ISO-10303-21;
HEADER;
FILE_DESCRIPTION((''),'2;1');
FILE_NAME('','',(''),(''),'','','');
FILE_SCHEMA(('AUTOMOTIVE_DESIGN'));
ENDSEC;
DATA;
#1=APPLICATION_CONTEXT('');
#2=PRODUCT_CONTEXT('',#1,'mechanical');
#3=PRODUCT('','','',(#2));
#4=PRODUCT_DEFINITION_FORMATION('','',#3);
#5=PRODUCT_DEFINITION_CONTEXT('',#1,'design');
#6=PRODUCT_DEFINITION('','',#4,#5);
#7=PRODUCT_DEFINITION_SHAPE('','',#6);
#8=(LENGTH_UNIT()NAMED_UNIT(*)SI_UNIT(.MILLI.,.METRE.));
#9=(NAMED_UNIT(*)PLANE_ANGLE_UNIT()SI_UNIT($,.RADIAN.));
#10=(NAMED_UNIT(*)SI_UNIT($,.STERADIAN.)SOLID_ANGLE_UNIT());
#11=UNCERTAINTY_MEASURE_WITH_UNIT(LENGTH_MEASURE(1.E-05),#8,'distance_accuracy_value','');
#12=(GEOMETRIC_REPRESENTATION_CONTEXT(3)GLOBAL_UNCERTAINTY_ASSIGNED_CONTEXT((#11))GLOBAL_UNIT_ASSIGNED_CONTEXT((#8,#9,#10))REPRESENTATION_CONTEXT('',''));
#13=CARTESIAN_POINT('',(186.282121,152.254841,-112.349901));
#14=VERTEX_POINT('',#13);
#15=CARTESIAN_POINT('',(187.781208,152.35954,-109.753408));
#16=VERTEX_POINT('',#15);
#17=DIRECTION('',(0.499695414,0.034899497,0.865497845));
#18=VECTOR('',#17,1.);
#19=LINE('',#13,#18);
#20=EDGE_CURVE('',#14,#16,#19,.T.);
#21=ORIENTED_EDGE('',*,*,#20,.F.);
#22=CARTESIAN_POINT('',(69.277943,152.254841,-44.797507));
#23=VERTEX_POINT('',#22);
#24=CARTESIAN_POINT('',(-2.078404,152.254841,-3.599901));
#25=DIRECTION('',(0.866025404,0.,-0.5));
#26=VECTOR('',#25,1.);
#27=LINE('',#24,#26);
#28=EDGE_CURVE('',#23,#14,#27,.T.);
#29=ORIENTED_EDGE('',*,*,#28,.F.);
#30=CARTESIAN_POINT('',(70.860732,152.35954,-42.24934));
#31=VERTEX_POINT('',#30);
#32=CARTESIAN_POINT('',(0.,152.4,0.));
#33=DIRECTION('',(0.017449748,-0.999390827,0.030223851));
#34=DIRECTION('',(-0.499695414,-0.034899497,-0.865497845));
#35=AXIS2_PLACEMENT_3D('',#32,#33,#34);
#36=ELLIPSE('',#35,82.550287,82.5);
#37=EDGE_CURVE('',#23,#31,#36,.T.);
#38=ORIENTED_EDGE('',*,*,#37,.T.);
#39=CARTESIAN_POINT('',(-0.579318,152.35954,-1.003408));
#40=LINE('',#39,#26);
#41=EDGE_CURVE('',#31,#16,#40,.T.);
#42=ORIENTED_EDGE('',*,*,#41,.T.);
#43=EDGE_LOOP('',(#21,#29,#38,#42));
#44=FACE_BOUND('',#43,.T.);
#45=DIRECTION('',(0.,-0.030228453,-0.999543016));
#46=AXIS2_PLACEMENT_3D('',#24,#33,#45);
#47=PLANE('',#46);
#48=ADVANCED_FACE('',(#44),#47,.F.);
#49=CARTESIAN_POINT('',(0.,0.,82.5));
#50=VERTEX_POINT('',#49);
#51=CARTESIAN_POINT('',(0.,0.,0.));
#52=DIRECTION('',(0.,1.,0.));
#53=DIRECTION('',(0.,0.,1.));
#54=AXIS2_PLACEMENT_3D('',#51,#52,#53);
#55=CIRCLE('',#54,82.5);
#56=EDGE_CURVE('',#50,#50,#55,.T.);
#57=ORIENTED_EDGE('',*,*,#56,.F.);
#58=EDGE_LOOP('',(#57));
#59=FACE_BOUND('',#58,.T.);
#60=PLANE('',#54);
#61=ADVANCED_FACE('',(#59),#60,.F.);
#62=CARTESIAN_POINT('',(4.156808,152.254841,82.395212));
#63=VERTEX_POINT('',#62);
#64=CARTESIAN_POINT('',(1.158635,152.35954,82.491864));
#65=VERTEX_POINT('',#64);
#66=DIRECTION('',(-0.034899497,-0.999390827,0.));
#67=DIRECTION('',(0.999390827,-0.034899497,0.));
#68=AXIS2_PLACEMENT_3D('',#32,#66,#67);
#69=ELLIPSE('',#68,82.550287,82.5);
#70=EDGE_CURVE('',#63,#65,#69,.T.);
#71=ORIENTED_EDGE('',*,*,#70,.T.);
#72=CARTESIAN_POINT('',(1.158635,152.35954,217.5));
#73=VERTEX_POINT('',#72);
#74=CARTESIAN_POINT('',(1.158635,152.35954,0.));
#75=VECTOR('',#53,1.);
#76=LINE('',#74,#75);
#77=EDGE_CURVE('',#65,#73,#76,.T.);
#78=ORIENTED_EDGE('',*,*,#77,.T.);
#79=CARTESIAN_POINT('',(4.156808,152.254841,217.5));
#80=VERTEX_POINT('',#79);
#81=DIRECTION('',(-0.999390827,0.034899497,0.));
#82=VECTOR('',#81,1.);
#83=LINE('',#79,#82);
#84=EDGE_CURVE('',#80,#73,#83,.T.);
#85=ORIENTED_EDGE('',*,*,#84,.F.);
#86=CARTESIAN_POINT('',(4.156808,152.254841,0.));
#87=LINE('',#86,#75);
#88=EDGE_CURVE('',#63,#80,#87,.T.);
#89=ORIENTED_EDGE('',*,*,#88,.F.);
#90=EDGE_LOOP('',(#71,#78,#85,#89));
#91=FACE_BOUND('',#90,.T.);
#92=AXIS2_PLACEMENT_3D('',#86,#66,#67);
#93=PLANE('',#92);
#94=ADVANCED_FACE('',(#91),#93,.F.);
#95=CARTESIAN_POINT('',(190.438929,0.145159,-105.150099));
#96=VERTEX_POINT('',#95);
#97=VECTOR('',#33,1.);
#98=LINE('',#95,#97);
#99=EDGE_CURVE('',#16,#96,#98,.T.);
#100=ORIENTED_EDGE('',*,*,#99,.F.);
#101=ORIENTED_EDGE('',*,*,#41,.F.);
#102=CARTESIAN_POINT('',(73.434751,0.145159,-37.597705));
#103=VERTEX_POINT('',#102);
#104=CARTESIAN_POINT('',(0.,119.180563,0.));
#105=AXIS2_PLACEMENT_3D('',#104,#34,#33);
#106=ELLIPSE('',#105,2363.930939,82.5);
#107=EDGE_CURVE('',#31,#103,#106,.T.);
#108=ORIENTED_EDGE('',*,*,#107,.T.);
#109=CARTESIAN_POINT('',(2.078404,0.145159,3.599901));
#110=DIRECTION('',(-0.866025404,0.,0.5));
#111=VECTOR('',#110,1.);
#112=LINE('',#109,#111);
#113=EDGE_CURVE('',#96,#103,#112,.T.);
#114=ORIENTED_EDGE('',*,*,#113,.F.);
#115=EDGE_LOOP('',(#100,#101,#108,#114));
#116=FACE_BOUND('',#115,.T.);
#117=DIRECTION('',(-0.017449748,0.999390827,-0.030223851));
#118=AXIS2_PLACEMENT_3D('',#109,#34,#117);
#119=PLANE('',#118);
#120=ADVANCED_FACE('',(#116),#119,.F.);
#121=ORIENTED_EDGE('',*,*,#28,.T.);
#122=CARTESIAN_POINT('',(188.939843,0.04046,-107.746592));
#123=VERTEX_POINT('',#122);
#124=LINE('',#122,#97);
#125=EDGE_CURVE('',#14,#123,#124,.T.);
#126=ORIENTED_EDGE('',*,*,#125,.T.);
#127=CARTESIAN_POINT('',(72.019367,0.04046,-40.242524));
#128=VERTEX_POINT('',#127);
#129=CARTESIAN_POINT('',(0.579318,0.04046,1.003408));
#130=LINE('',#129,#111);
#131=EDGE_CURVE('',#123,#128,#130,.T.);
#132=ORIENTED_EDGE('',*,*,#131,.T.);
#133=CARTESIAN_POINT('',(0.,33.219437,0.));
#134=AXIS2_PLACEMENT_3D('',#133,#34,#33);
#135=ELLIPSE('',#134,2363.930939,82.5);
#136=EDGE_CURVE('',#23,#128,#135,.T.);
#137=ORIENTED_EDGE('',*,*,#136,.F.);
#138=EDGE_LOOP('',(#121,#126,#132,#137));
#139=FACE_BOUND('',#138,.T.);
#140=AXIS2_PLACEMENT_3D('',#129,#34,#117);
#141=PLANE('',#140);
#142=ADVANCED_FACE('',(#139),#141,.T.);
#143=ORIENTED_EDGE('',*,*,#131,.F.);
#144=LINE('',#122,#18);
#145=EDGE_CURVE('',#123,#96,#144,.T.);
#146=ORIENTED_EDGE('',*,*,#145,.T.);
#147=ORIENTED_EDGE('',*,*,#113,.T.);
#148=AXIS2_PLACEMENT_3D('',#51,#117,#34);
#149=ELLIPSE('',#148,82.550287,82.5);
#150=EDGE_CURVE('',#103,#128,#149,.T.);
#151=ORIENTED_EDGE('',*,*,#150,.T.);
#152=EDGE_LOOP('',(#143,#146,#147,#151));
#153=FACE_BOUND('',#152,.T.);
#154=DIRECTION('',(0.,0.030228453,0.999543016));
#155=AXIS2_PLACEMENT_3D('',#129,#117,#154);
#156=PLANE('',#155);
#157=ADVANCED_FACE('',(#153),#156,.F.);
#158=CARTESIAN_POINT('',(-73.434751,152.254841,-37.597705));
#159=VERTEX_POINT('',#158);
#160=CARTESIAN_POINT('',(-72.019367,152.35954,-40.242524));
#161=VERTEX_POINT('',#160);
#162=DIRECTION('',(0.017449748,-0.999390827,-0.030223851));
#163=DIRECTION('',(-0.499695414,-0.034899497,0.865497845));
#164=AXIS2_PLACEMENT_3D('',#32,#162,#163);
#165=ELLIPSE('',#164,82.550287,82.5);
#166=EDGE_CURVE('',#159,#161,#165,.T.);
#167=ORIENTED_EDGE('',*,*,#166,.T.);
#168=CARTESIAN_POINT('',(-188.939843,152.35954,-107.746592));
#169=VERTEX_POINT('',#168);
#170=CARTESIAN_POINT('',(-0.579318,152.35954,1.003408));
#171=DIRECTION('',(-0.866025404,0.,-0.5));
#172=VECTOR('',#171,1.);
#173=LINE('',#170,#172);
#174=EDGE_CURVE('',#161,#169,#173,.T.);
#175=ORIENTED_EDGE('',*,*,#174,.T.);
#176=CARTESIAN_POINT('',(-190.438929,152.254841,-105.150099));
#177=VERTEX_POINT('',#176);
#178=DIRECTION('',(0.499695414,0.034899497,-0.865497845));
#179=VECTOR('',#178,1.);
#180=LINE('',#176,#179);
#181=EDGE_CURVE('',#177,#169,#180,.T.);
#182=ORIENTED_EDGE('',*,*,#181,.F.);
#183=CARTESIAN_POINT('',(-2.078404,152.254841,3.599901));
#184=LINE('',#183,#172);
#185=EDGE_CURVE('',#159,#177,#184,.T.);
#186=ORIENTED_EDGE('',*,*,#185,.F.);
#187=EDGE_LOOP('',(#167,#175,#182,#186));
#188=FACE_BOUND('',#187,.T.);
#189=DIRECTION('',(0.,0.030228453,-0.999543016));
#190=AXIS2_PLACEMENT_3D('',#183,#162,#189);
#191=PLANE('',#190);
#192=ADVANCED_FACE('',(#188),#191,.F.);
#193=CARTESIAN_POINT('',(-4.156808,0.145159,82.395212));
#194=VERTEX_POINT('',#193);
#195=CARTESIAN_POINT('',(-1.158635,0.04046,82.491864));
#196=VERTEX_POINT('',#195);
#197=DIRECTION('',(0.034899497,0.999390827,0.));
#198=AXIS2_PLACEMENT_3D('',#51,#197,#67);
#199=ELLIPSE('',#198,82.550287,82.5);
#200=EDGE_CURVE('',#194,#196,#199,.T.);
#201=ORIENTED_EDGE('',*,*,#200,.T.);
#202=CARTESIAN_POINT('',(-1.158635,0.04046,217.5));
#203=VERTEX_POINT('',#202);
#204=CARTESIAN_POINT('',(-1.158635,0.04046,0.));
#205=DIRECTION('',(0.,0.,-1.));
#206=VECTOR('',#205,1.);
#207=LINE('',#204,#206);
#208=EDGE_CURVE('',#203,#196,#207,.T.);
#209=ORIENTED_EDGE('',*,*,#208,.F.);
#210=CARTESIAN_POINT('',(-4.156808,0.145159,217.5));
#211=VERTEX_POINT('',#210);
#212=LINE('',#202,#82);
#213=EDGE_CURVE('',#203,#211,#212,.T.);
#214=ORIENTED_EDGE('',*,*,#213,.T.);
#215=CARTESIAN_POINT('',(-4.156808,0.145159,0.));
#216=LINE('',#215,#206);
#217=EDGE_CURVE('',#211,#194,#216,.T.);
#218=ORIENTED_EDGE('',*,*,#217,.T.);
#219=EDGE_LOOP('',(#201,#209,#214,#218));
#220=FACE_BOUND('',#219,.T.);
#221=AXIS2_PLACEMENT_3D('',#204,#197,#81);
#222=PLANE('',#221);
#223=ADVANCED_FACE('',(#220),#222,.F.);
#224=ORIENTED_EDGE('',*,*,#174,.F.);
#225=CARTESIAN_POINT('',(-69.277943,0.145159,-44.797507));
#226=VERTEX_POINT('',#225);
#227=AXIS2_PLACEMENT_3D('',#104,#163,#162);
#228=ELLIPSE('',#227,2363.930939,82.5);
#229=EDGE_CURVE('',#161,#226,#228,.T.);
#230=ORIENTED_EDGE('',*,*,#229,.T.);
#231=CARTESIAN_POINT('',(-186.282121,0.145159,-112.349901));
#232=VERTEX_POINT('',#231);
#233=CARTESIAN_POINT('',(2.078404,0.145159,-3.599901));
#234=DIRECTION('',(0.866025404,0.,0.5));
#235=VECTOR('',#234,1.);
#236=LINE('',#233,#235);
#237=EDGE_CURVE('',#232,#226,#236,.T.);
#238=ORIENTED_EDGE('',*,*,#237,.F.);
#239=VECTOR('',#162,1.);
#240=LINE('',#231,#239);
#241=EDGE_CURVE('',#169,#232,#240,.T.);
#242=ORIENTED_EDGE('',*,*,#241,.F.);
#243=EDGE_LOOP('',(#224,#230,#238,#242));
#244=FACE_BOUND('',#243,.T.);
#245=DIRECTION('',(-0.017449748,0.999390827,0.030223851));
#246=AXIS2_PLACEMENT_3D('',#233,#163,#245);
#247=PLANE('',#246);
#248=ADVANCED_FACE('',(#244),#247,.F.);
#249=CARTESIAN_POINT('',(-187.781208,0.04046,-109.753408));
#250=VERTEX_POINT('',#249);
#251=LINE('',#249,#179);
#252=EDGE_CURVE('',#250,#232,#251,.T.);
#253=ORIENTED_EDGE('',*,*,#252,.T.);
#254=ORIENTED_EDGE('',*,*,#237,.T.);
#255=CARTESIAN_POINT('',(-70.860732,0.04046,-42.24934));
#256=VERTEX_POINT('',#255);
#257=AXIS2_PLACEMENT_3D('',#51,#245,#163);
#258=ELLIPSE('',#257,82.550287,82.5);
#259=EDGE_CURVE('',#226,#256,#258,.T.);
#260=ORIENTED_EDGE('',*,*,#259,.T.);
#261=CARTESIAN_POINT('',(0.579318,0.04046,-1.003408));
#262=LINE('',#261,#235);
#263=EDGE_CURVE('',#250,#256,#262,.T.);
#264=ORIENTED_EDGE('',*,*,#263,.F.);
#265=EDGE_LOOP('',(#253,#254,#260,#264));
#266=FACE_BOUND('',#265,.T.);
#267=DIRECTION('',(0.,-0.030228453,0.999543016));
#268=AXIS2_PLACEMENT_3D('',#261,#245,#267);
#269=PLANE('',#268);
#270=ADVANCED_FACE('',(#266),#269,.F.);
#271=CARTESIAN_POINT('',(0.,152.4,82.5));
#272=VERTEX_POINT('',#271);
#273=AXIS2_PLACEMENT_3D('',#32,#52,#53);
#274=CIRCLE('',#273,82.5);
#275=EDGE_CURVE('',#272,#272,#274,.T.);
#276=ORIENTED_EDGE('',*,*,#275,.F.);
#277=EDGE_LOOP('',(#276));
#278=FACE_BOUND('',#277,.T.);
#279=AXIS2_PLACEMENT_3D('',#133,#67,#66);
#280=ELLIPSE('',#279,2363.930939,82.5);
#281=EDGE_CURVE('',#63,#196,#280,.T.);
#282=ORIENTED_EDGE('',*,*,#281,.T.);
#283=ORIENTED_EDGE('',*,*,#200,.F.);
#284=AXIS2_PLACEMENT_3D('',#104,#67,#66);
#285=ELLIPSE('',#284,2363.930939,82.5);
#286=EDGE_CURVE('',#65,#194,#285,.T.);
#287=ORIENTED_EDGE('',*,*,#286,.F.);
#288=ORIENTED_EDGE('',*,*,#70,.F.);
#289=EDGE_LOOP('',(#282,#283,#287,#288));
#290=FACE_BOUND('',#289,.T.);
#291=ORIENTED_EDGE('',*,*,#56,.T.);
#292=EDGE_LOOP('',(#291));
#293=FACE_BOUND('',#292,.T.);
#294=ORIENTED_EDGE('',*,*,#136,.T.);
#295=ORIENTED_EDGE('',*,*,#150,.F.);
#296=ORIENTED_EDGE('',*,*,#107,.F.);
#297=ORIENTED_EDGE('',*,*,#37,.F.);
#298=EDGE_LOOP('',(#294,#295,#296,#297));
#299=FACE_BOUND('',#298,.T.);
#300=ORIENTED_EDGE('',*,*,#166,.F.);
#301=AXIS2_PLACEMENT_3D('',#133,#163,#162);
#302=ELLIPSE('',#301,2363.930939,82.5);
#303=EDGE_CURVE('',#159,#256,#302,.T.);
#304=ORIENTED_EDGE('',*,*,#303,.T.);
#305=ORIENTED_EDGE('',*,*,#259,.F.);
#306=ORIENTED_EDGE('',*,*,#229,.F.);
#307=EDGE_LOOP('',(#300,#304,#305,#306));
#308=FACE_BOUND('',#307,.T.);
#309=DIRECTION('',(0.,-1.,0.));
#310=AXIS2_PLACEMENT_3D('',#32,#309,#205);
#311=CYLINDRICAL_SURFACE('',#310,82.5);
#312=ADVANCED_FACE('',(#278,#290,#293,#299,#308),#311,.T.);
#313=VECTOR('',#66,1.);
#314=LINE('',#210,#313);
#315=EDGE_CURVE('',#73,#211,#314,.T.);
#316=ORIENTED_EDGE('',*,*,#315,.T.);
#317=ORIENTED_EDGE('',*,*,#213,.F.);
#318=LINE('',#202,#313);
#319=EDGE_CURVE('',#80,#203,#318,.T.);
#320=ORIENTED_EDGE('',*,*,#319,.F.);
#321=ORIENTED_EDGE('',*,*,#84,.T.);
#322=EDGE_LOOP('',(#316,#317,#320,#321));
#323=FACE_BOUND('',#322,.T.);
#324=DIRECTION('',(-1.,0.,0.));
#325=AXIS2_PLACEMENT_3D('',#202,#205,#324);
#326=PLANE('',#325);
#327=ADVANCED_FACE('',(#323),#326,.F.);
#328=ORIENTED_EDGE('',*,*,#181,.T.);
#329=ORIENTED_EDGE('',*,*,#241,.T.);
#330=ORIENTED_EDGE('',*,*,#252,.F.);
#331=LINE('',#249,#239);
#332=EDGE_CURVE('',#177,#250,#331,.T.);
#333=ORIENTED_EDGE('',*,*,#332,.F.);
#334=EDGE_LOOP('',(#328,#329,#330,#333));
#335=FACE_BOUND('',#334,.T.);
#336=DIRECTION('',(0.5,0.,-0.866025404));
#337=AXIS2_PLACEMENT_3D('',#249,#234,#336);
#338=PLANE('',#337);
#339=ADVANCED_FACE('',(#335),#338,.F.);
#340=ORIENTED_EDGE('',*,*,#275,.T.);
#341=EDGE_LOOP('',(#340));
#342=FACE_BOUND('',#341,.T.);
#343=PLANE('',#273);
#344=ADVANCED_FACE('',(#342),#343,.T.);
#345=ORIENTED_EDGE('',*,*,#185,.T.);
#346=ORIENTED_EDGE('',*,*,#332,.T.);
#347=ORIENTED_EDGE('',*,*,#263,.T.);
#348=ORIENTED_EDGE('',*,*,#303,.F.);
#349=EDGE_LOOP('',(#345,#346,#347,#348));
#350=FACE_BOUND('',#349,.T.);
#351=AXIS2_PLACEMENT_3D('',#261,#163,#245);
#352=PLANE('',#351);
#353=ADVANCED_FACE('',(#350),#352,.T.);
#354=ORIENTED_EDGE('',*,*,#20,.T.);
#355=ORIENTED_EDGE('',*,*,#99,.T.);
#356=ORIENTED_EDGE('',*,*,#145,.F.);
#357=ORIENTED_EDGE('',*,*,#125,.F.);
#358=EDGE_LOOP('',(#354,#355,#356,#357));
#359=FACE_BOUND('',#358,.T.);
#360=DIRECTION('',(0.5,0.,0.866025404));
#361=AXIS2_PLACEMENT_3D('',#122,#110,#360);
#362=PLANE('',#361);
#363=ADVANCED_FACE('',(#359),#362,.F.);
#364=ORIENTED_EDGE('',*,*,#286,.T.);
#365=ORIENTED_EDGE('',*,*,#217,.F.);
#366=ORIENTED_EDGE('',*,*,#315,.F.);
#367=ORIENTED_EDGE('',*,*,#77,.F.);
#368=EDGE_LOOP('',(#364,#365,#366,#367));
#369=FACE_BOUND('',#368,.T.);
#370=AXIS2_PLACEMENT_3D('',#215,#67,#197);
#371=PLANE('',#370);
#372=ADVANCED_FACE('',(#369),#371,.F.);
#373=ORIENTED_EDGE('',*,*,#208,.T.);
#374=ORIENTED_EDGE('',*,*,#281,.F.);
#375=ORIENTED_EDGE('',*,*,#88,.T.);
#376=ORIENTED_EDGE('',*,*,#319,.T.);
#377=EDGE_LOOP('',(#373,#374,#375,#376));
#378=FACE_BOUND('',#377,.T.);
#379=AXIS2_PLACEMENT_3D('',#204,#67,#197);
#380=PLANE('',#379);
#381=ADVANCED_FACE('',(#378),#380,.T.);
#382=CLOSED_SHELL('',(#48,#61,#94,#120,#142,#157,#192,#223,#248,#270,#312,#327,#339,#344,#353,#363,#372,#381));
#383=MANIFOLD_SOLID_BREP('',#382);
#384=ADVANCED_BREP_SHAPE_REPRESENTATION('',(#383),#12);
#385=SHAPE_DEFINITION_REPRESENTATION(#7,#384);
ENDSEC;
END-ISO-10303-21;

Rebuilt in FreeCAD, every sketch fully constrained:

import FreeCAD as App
import Part
import Sketcher

V = App.Vector
Q = App.Units.Quantity


def add_polygon(sketch, points):
    """Adds a closed chain of lines whose ends are joined by coincident constraints."""
    first, n = sketch.GeometryCount, len(points)
    for a, b in zip(points, points[1:] + points[:1]):
        sketch.addGeometry(Part.LineSegment(App.Vector(*a, 0), App.Vector(*b, 0)), False)
    for i in range(n):
        sketch.addConstraint(Sketcher.Constraint("Coincident", first + i, 2, first + (i + 1) % n, 1))

doc = App.newDocument("Part")
body = doc.addObject("PartDesign::Body", "Body")

# Sketch on XZ plane
sketch1 = body.newObject("Sketcher::SketchObject", "Sketch")
sketch1.AttachmentSupport = (doc.getObject("XZ_Plane"), [""])
sketch1.MapMode = "FlatFace"
sketch1.addGeometry(Part.Circle(V(0, 0, 0), V(0, 0, 1), 82), False)
sketch1.addConstraint([
    Sketcher.Constraint("Coincident", 0, 3, -1, 1),
    Sketcher.Constraint("Diameter", 0, Q("165 mm")),
])
pad1 = body.newObject("PartDesign::Pad", "Pad")
pad1.Profile = sketch1
pad1.Length = 152.4
pad1.Reversed = True

# Sketch on an angled plane
sketch2 = body.newObject("Sketcher::SketchObject", "Sketch001")
sketch2.Placement = App.Placement(V(-2.657722, 0.09281, 0), App.Rotation(V(0, 0, -1), V(0.034899497, 0.999390827, 0), V(0.999390827, -0.034899497, 0), "ZXY"))
add_polygon(sketch2, [(-218, 152), (-218, 0), (0, 0), (0, 152)])  # lines 0-3
sketch2.addConstraint([
    Sketcher.Constraint("Vertical", 0),
    Sketcher.Constraint("Horizontal", 1),
    Sketcher.Constraint("Vertical", 2),
    Sketcher.Constraint("Horizontal", 3),
    Sketcher.Constraint("Coincident", 1, 2, -1, 1),
    Sketcher.Constraint("DistanceX", 1, 1, 1, 2, Q("217.5 mm")),
    Sketcher.Constraint("DistanceY", 0, 2, 0, 1, Q("152.307162 mm")),
])
pad2 = body.newObject("PartDesign::Pad", "Pad001")
pad2.Profile = sketch2
pad2.Length = 3
pad2.Midplane = True
doc.recompute()

polarpattern = body.newObject("PartDesign::PolarPattern", "PolarPattern")
polarpattern.Originals = [pad2]
polarpattern.Axis = (doc.getObject("Y_Axis"), [""])
polarpattern.Angle = 360
polarpattern.Occurrences = 3
body.Tip = polarpattern

doc.recompute()
